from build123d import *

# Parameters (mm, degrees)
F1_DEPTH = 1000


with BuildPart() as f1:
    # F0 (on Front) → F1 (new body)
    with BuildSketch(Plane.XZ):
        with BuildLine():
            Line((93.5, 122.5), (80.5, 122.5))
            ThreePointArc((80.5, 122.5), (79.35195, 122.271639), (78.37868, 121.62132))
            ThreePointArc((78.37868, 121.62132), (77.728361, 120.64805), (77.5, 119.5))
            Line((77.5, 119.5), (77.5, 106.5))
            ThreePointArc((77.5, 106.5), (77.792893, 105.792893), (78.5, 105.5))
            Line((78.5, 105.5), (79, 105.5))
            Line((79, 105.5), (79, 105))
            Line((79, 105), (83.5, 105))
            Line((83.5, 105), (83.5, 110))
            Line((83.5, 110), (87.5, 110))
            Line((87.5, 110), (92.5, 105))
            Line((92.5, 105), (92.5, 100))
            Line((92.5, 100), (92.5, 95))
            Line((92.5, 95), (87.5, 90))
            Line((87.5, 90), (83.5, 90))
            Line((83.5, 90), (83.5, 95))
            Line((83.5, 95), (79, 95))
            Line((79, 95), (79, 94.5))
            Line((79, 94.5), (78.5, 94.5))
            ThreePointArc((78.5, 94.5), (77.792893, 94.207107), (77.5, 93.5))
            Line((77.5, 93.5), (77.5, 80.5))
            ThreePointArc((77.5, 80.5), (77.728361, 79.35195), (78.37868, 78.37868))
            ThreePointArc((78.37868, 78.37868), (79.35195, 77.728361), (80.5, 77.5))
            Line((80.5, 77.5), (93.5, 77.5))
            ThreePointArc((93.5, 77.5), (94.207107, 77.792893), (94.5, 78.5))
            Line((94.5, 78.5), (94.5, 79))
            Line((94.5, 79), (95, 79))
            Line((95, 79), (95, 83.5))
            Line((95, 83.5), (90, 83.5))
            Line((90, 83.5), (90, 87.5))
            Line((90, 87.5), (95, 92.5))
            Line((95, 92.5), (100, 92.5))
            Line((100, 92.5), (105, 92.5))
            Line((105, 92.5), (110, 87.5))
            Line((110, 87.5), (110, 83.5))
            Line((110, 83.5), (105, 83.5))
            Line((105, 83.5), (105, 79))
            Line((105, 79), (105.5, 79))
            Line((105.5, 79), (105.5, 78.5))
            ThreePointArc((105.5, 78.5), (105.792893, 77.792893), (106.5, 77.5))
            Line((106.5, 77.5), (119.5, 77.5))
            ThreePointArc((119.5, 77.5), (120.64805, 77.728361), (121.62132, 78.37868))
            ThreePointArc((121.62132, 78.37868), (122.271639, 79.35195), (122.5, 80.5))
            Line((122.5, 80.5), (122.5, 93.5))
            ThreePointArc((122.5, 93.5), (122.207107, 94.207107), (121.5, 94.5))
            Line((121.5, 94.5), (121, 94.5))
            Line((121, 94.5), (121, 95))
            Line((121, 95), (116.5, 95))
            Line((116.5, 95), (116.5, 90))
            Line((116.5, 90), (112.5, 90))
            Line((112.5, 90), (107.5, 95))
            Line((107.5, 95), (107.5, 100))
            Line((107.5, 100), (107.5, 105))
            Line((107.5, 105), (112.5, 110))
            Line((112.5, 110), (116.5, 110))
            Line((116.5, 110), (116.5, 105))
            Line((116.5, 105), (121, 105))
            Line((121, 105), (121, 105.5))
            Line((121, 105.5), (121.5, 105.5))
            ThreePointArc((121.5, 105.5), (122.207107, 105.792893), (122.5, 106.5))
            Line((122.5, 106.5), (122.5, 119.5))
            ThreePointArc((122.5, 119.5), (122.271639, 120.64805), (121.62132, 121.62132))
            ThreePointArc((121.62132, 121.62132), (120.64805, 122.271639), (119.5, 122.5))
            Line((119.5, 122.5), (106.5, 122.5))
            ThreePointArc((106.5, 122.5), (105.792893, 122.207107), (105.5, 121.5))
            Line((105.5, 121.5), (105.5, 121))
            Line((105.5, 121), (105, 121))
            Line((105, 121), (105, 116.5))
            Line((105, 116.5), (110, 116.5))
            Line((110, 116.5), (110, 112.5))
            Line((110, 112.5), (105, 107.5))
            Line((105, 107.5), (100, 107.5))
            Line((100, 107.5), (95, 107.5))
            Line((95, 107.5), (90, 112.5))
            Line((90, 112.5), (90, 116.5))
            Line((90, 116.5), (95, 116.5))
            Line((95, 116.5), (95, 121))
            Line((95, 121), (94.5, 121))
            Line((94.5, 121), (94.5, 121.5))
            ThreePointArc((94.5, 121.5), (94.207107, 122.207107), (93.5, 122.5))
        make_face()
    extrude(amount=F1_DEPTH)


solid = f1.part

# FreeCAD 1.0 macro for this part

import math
import FreeCAD as App
import Part
import Sketcher

doc = App.newDocument("Part")
body = doc.addObject("PartDesign::Body", "Body")

# Sketch on XZ plane
sketch1 = doc.addObject("Sketcher::SketchObject", "Sketch")
body.addObject(sketch1)
sketch1.AttachmentSupport = (doc.XZ_Plane, [""])
sketch1.MapMode = "FlatFace"
sketch1.addGeometry([
    Part.LineSegment(App.Vector(93.5, 122.5, 0), App.Vector(80.5, 122.5, 0)),  # 0
    Part.ArcOfCircle(Part.Circle(App.Vector(80.5, 119.5, 0), App.Vector(0, 0, 1), 3), math.radians(90), math.radians(135)),  # 1
    Part.ArcOfCircle(Part.Circle(App.Vector(80.5, 119.5, 0), App.Vector(0, 0, 1), 3), math.radians(135), math.radians(180)),  # 2
    Part.LineSegment(App.Vector(77.5, 119.5, 0), App.Vector(77.5, 106.5, 0)),  # 3
    Part.ArcOfCircle(Part.Circle(App.Vector(78.5, 106.5, 0), App.Vector(0, 0, 1), 1), math.radians(180), math.radians(270)),  # 4
    Part.LineSegment(App.Vector(78.5, 105.5, 0), App.Vector(79, 105.5, 0)),  # 5
    Part.LineSegment(App.Vector(79, 105.5, 0), App.Vector(79, 105, 0)),  # 6
    Part.LineSegment(App.Vector(79, 105, 0), App.Vector(83.5, 105, 0)),  # 7
    Part.LineSegment(App.Vector(83.5, 105, 0), App.Vector(83.5, 110, 0)),  # 8
    Part.LineSegment(App.Vector(83.5, 110, 0), App.Vector(87.5, 110, 0)),  # 9
    Part.LineSegment(App.Vector(87.5, 110, 0), App.Vector(92.5, 105, 0)),  # 10
    Part.LineSegment(App.Vector(92.5, 105, 0), App.Vector(92.5, 95, 0)),  # 11
    Part.LineSegment(App.Vector(92.5, 95, 0), App.Vector(87.5, 90, 0)),  # 12
    Part.LineSegment(App.Vector(87.5, 90, 0), App.Vector(83.5, 90, 0)),  # 13
    Part.LineSegment(App.Vector(83.5, 90, 0), App.Vector(83.5, 95, 0)),  # 14
    Part.LineSegment(App.Vector(83.5, 95, 0), App.Vector(79, 95, 0)),  # 15
    Part.LineSegment(App.Vector(79, 95, 0), App.Vector(79, 94.5, 0)),  # 16
    Part.LineSegment(App.Vector(79, 94.5, 0), App.Vector(78.5, 94.5, 0)),  # 17
    Part.ArcOfCircle(Part.Circle(App.Vector(78.5, 93.5, 0), App.Vector(0, 0, 1), 1), math.radians(90), math.radians(180)),  # 18
    Part.LineSegment(App.Vector(77.5, 93.5, 0), App.Vector(77.5, 80.5, 0)),  # 19
    Part.ArcOfCircle(Part.Circle(App.Vector(80.5, 80.5, 0), App.Vector(0, 0, 1), 3), math.radians(180), math.radians(225)),  # 20
    Part.ArcOfCircle(Part.Circle(App.Vector(80.5, 80.5, 0), App.Vector(0, 0, 1), 3), math.radians(-135), math.radians(-90)),  # 21
    Part.LineSegment(App.Vector(80.5, 77.5, 0), App.Vector(93.5, 77.5, 0)),  # 22
    Part.ArcOfCircle(Part.Circle(App.Vector(93.5, 78.5, 0), App.Vector(0, 0, 1), 1), math.radians(-90), math.radians(0)),  # 23
    Part.LineSegment(App.Vector(94.5, 78.5, 0), App.Vector(94.5, 79, 0)),  # 24
    Part.LineSegment(App.Vector(94.5, 79, 0), App.Vector(95, 79, 0)),  # 25
    Part.LineSegment(App.Vector(95, 79, 0), App.Vector(95, 83.5, 0)),  # 26
    Part.LineSegment(App.Vector(95, 83.5, 0), App.Vector(90, 83.5, 0)),  # 27
    Part.LineSegment(App.Vector(90, 83.5, 0), App.Vector(90, 87.5, 0)),  # 28
    Part.LineSegment(App.Vector(90, 87.5, 0), App.Vector(95, 92.5, 0)),  # 29
    Part.LineSegment(App.Vector(95, 92.5, 0), App.Vector(105, 92.5, 0)),  # 30
    Part.LineSegment(App.Vector(105, 92.5, 0), App.Vector(110, 87.5, 0)),  # 31
    Part.LineSegment(App.Vector(110, 87.5, 0), App.Vector(110, 83.5, 0)),  # 32
    Part.LineSegment(App.Vector(110, 83.5, 0), App.Vector(105, 83.5, 0)),  # 33
    Part.LineSegment(App.Vector(105, 83.5, 0), App.Vector(105, 79, 0)),  # 34
    Part.LineSegment(App.Vector(105, 79, 0), App.Vector(105.5, 79, 0)),  # 35
    Part.LineSegment(App.Vector(105.5, 79, 0), App.Vector(105.5, 78.5, 0)),  # 36
    Part.ArcOfCircle(Part.Circle(App.Vector(106.5, 78.5, 0), App.Vector(0, 0, 1), 1), math.radians(180), math.radians(270)),  # 37
    Part.LineSegment(App.Vector(106.5, 77.5, 0), App.Vector(119.5, 77.5, 0)),  # 38
    Part.ArcOfCircle(Part.Circle(App.Vector(119.5, 80.5, 0), App.Vector(0, 0, 1), 3), math.radians(-90), math.radians(-45)),  # 39
    Part.ArcOfCircle(Part.Circle(App.Vector(119.5, 80.5, 0), App.Vector(0, 0, 1), 3), math.radians(-45), math.radians(0)),  # 40
    Part.LineSegment(App.Vector(122.5, 80.5, 0), App.Vector(122.5, 93.5, 0)),  # 41
    Part.ArcOfCircle(Part.Circle(App.Vector(121.5, 93.5, 0), App.Vector(0, 0, 1), 1), math.radians(0), math.radians(90)),  # 42
    Part.LineSegment(App.Vector(121.5, 94.5, 0), App.Vector(121, 94.5, 0)),  # 43
    Part.LineSegment(App.Vector(121, 94.5, 0), App.Vector(121, 95, 0)),  # 44
    Part.LineSegment(App.Vector(121, 95, 0), App.Vector(116.5, 95, 0)),  # 45
    Part.LineSegment(App.Vector(116.5, 95, 0), App.Vector(116.5, 90, 0)),  # 46
    Part.LineSegment(App.Vector(116.5, 90, 0), App.Vector(112.5, 90, 0)),  # 47
    Part.LineSegment(App.Vector(112.5, 90, 0), App.Vector(107.5, 95, 0)),  # 48
    Part.LineSegment(App.Vector(107.5, 95, 0), App.Vector(107.5, 105, 0)),  # 49
    Part.LineSegment(App.Vector(107.5, 105, 0), App.Vector(112.5, 110, 0)),  # 50
    Part.LineSegment(App.Vector(112.5, 110, 0), App.Vector(116.5, 110, 0)),  # 51
    Part.LineSegment(App.Vector(116.5, 110, 0), App.Vector(116.5, 105, 0)),  # 52
    Part.LineSegment(App.Vector(116.5, 105, 0), App.Vector(121, 105, 0)),  # 53
    Part.LineSegment(App.Vector(121, 105, 0), App.Vector(121, 105.5, 0)),  # 54
    Part.LineSegment(App.Vector(121, 105.5, 0), App.Vector(121.5, 105.5, 0)),  # 55
    Part.ArcOfCircle(Part.Circle(App.Vector(121.5, 106.5, 0), App.Vector(0, 0, 1), 1), math.radians(-90), math.radians(0)),  # 56
    Part.LineSegment(App.Vector(122.5, 106.5, 0), App.Vector(122.5, 119.5, 0)),  # 57
    Part.ArcOfCircle(Part.Circle(App.Vector(119.5, 119.5, 0), App.Vector(0, 0, 1), 3), math.radians(0), math.radians(45)),  # 58
    Part.ArcOfCircle(Part.Circle(App.Vector(119.5, 119.5, 0), App.Vector(0, 0, 1), 3), math.radians(45), math.radians(90)),  # 59
    Part.LineSegment(App.Vector(119.5, 122.5, 0), App.Vector(106.5, 122.5, 0)),  # 60
    Part.ArcOfCircle(Part.Circle(App.Vector(106.5, 121.5, 0), App.Vector(0, 0, 1), 1), math.radians(90), math.radians(180)),  # 61
    Part.LineSegment(App.Vector(105.5, 121.5, 0), App.Vector(105.5, 121, 0)),  # 62
    Part.LineSegment(App.Vector(105.5, 121, 0), App.Vector(105, 121, 0)),  # 63
    Part.LineSegment(App.Vector(105, 121, 0), App.Vector(105, 116.5, 0)),  # 64
    Part.LineSegment(App.Vector(105, 116.5, 0), App.Vector(110, 116.5, 0)),  # 65
    Part.LineSegment(App.Vector(110, 116.5, 0), App.Vector(110, 112.5, 0)),  # 66
    Part.LineSegment(App.Vector(110, 112.5, 0), App.Vector(105, 107.5, 0)),  # 67
    Part.LineSegment(App.Vector(105, 107.5, 0), App.Vector(95, 107.5, 0)),  # 68
    Part.LineSegment(App.Vector(95, 107.5, 0), App.Vector(90, 112.5, 0)),  # 69
    Part.LineSegment(App.Vector(90, 112.5, 0), App.Vector(90, 116.5, 0)),  # 70
    Part.LineSegment(App.Vector(90, 116.5, 0), App.Vector(95, 116.5, 0)),  # 71
    Part.LineSegment(App.Vector(95, 116.5, 0), App.Vector(95, 121, 0)),  # 72
    Part.LineSegment(App.Vector(95, 121, 0), App.Vector(94.5, 121, 0)),  # 73
    Part.LineSegment(App.Vector(94.5, 121, 0), App.Vector(94.5, 121.5, 0)),  # 74
    Part.ArcOfCircle(Part.Circle(App.Vector(93.5, 121.5, 0), App.Vector(0, 0, 1), 1), math.radians(0), math.radians(90)),  # 75
], False)
sketch1.addConstraint([
    Sketcher.Constraint("Tangent", 0, 2, 1, 1),
    Sketcher.Constraint("Coincident", 1, 2, 2, 1),
    Sketcher.Constraint("Tangent", 2, 2, 3, 1),
    Sketcher.Constraint("Tangent", 3, 2, 4, 1),
    Sketcher.Constraint("Tangent", 4, 2, 5, 1),
    Sketcher.Constraint("Coincident", 5, 2, 6, 1),
    Sketcher.Constraint("Coincident", 6, 2, 7, 1),
    Sketcher.Constraint("Coincident", 7, 2, 8, 1),
    Sketcher.Constraint("Coincident", 8, 2, 9, 1),
    Sketcher.Constraint("Coincident", 9, 2, 10, 1),
    Sketcher.Constraint("Coincident", 10, 2, 11, 1),
    Sketcher.Constraint("Coincident", 11, 2, 12, 1),
    Sketcher.Constraint("Coincident", 12, 2, 13, 1),
    Sketcher.Constraint("Coincident", 13, 2, 14, 1),
    Sketcher.Constraint("Coincident", 14, 2, 15, 1),
    Sketcher.Constraint("Coincident", 15, 2, 16, 1),
    Sketcher.Constraint("Coincident", 16, 2, 17, 1),
    Sketcher.Constraint("Tangent", 17, 2, 18, 1),
    Sketcher.Constraint("Tangent", 18, 2, 19, 1),
    Sketcher.Constraint("Tangent", 19, 2, 20, 1),
    Sketcher.Constraint("Coincident", 20, 2, 21, 1),
    Sketcher.Constraint("Tangent", 21, 2, 22, 1),
    Sketcher.Constraint("Tangent", 22, 2, 23, 1),
    Sketcher.Constraint("Tangent", 23, 2, 24, 1),
    Sketcher.Constraint("Coincident", 24, 2, 25, 1),
    Sketcher.Constraint("Coincident", 25, 2, 26, 1),
    Sketcher.Constraint("Coincident", 26, 2, 27, 1),
    Sketcher.Constraint("Coincident", 27, 2, 28, 1),
    Sketcher.Constraint("Coincident", 28, 2, 29, 1),
    Sketcher.Constraint("Coincident", 29, 2, 30, 1),
    Sketcher.Constraint("Coincident", 30, 2, 31, 1),
    Sketcher.Constraint("Coincident", 31, 2, 32, 1),
    Sketcher.Constraint("Coincident", 32, 2, 33, 1),
    Sketcher.Constraint("Coincident", 33, 2, 34, 1),
    Sketcher.Constraint("Coincident", 34, 2, 35, 1),
    Sketcher.Constraint("Coincident", 35, 2, 36, 1),
    Sketcher.Constraint("Tangent", 36, 2, 37, 1),
    Sketcher.Constraint("Tangent", 37, 2, 38, 1),
    Sketcher.Constraint("Tangent", 38, 2, 39, 1),
    Sketcher.Constraint("Coincident", 39, 2, 40, 1),
    Sketcher.Constraint("Tangent", 40, 2, 41, 1),
    Sketcher.Constraint("Tangent", 41, 2, 42, 1),
    Sketcher.Constraint("Tangent", 42, 2, 43, 1),
    Sketcher.Constraint("Coincident", 43, 2, 44, 1),
    Sketcher.Constraint("Coincident", 44, 2, 45, 1),
    Sketcher.Constraint("Coincident", 45, 2, 46, 1),
    Sketcher.Constraint("Coincident", 46, 2, 47, 1),
    Sketcher.Constraint("Coincident", 47, 2, 48, 1),
    Sketcher.Constraint("Coincident", 48, 2, 49, 1),
    Sketcher.Constraint("Coincident", 49, 2, 50, 1),
    Sketcher.Constraint("Coincident", 50, 2, 51, 1),
    Sketcher.Constraint("Coincident", 51, 2, 52, 1),
    Sketcher.Constraint("Coincident", 52, 2, 53, 1),
    Sketcher.Constraint("Coincident", 53, 2, 54, 1),
    Sketcher.Constraint("Coincident", 54, 2, 55, 1),
    Sketcher.Constraint("Tangent", 55, 2, 56, 1),
    Sketcher.Constraint("Tangent", 56, 2, 57, 1),
    Sketcher.Constraint("Tangent", 57, 2, 58, 1),
    Sketcher.Constraint("Coincident", 58, 2, 59, 1),
    Sketcher.Constraint("Tangent", 59, 2, 60, 1),
    Sketcher.Constraint("Tangent", 60, 2, 61, 1),
    Sketcher.Constraint("Tangent", 61, 2, 62, 1),
    Sketcher.Constraint("Coincident", 62, 2, 63, 1),
    Sketcher.Constraint("Coincident", 63, 2, 64, 1),
    Sketcher.Constraint("Coincident", 64, 2, 65, 1),
    Sketcher.Constraint("Coincident", 65, 2, 66, 1),
    Sketcher.Constraint("Coincident", 66, 2, 67, 1),
    Sketcher.Constraint("Coincident", 67, 2, 68, 1),
    Sketcher.Constraint("Coincident", 68, 2, 69, 1),
    Sketcher.Constraint("Coincident", 69, 2, 70, 1),
    Sketcher.Constraint("Coincident", 70, 2, 71, 1),
    Sketcher.Constraint("Coincident", 71, 2, 72, 1),
    Sketcher.Constraint("Coincident", 72, 2, 73, 1),
    Sketcher.Constraint("Coincident", 73, 2, 74, 1),
    Sketcher.Constraint("Tangent", 74, 2, 75, 1),
    Sketcher.Constraint("Tangent", 75, 2, 0, 1),
    Sketcher.Constraint("Horizontal", 0),
    Sketcher.Constraint("Vertical", 3),
    Sketcher.Constraint("Horizontal", 5),
    Sketcher.Constraint("Vertical", 6),
    Sketcher.Constraint("Horizontal", 7),
    Sketcher.Constraint("Vertical", 8),
    Sketcher.Constraint("Horizontal", 9),
    Sketcher.Constraint("Vertical", 11),
    Sketcher.Constraint("Horizontal", 13),
    Sketcher.Constraint("Vertical", 14),
    Sketcher.Constraint("Horizontal", 15),
    Sketcher.Constraint("Vertical", 16),
    Sketcher.Constraint("Horizontal", 17),
    Sketcher.Constraint("Vertical", 19),
    Sketcher.Constraint("Horizontal", 22),
    Sketcher.Constraint("Vertical", 24),
    Sketcher.Constraint("Horizontal", 25),
    Sketcher.Constraint("Vertical", 26),
    Sketcher.Constraint("Horizontal", 27),
    Sketcher.Constraint("Vertical", 28),
    Sketcher.Constraint("Horizontal", 30),
    Sketcher.Constraint("Vertical", 32),
    Sketcher.Constraint("Horizontal", 33),
    Sketcher.Constraint("Vertical", 34),
    Sketcher.Constraint("Horizontal", 35),
    Sketcher.Constraint("Vertical", 36),
    Sketcher.Constraint("Horizontal", 38),
    Sketcher.Constraint("Vertical", 41),
    Sketcher.Constraint("Horizontal", 43),
    Sketcher.Constraint("Vertical", 44),
    Sketcher.Constraint("Horizontal", 45),
    Sketcher.Constraint("Vertical", 46),
    Sketcher.Constraint("Horizontal", 47),
    Sketcher.Constraint("Vertical", 49),
    Sketcher.Constraint("Horizontal", 51),
    Sketcher.Constraint("Vertical", 52),
    Sketcher.Constraint("Horizontal", 53),
    Sketcher.Constraint("Vertical", 54),
    Sketcher.Constraint("Horizontal", 55),
    Sketcher.Constraint("Vertical", 57),
    Sketcher.Constraint("Horizontal", 60),
    Sketcher.Constraint("Vertical", 62),
    Sketcher.Constraint("Horizontal", 63),
    Sketcher.Constraint("Vertical", 64),
    Sketcher.Constraint("Horizontal", 65),
    Sketcher.Constraint("Vertical", 66),
    Sketcher.Constraint("Horizontal", 68),
    Sketcher.Constraint("Vertical", 70),
    Sketcher.Constraint("Horizontal", 71),
    Sketcher.Constraint("Vertical", 72),
    Sketcher.Constraint("Horizontal", 73),
    Sketcher.Constraint("Vertical", 74),
    Sketcher.Constraint("Coincident", 2, 3, 1, 3),
    Sketcher.Constraint("Coincident", 21, 3, 20, 3),
    Sketcher.Constraint("Coincident", 40, 3, 39, 3),
    Sketcher.Constraint("Coincident", 59, 3, 58, 3),
    Sketcher.Constraint("Equal", 4, 18),
    Sketcher.Constraint("Equal", 2, 20),
    Sketcher.Constraint("Equal", 18, 23),
    Sketcher.Constraint("Equal", 23, 37),
    Sketcher.Constraint("Equal", 21, 39),
    Sketcher.Constraint("Equal", 37, 42),
    Sketcher.Constraint("Equal", 42, 56),
    Sketcher.Constraint("Equal", 40, 58),
    Sketcher.Constraint("Equal", 56, 61),
    Sketcher.Constraint("Equal", 61, 75),
    Sketcher.Constraint("Perpendicular", 10, 12),
    Sketcher.Constraint("Parallel", 12, 29),
    Sketcher.Constraint("Perpendicular", 29, 31),
    Sketcher.Constraint("Parallel", 31, 48),
    Sketcher.Constraint("Perpendicular", 48, 50),
    Sketcher.Constraint("Parallel", 50, 67),
    Sketcher.Constraint("Perpendicular", 67, 69),
    Sketcher.Constraint("Horizontal", 23, 3, 37, 3),
    Sketcher.Constraint("Horizontal", 18, 3, 42, 3),
    Sketcher.Constraint("Horizontal", 4, 3, 56, 3),
    Sketcher.Constraint("Horizontal", 2, 3, 58, 3),
    Sketcher.Constraint("Horizontal", 7, 2, 10, 2),
    Sketcher.Constraint("Horizontal", 11, 2, 14, 2),
    Sketcher.Constraint("Horizontal", 28, 2, 31, 2),
    Sketcher.Constraint("Horizontal", 27, 2, 32, 2),
    Sketcher.Constraint("Horizontal", 25, 2, 34, 2),
    Sketcher.Constraint("Horizontal", 20, 2, 39, 2),
    Sketcher.Constraint("Horizontal", 15, 2, 44, 2),
    Sketcher.Constraint("Horizontal", 13, 2, 46, 2),
    Sketcher.Constraint("Horizontal", 45, 2, 48, 2),
    Sketcher.Constraint("Horizontal", 10, 2, 49, 2),
    Sketcher.Constraint("Horizontal", 9, 2, 50, 2),
    Sketcher.Constraint("Horizontal", 49, 2, 52, 2),
    Sketcher.Constraint("Horizontal", 1, 2, 58, 2),
    Sketcher.Constraint("Horizontal", 66, 2, 69, 2),
    Sketcher.Constraint("Horizontal", 65, 2, 70, 2),
    Sketcher.Constraint("Horizontal", 63, 2, 72, 2),
    Sketcher.Constraint("Vertical", 4, 3, 18, 3),
    Sketcher.Constraint("Vertical", 42, 3, 56, 3),
    Sketcher.Constraint("Vertical", 37, 3, 61, 3),
    Sketcher.Constraint("Vertical", 23, 3, 75, 3),
    Sketcher.Constraint("Vertical", 9, 2, 12, 2),
    Sketcher.Constraint("Vertical", 8, 2, 13, 2),
    Sketcher.Constraint("Vertical", 6, 2, 15, 2),
    Sketcher.Constraint("Vertical", 1, 2, 20, 2),
    Sketcher.Constraint("Vertical", 26, 2, 29, 2),
    Sketcher.Constraint("Vertical", 30, 2, 33, 2),
    Sketcher.Constraint("Vertical", 47, 2, 50, 2),
    Sketcher.Constraint("Vertical", 46, 2, 51, 2),
    Sketcher.Constraint("Vertical", 44, 2, 53, 2),
    Sketcher.Constraint("Vertical", 34, 2, 63, 2),
    Sketcher.Constraint("Vertical", 32, 2, 65, 2),
    Sketcher.Constraint("Vertical", 64, 2, 67, 2),
    Sketcher.Constraint("Vertical", 29, 2, 68, 2),
    Sketcher.Constraint("Vertical", 68, 2, 71, 2),
    Sketcher.Constraint("Equal", 17, 25),
    Sketcher.Constraint("Equal", 25, 35),
    Sketcher.Constraint("Equal", 22, 38),
    Sketcher.Constraint("Equal", 35, 43),
    Sketcher.Constraint("Equal", 15, 45),
    Sketcher.Constraint("Equal", 13, 47),
    Sketcher.Constraint("Equal", 60, 3),
    Sketcher.Constraint("Equal", 73, 6),
    Sketcher.Constraint("Equal", 71, 8),
    Sketcher.Constraint("Equal", 68, 11),
    Sketcher.Constraint("Equal", 6, 16),
    Sketcher.Constraint("Equal", 3, 19),
    Sketcher.Constraint("Equal", 16, 24),
    Sketcher.Constraint("Equal", 53, 26),
    Sketcher.Constraint("Equal", 51, 28),
    Sketcher.Constraint("Equal", 54, 62),
    Sketcher.Constraint("Equal", 34, 64),
    Sketcher.Constraint("Equal", 32, 66),
    Sketcher.Constraint("Radius", 4, 0.999999),
    Sketcher.Constraint("DistanceX", 0, 2, 0, 1, 13.0),
    Sketcher.Constraint("DistanceX", 9, 1, 9, 2, 4.0),
    Sketcher.Constraint("DistanceX", 27, 2, 27, 1, 5.0),
    Sketcher.Constraint("DistanceX", 30, 1, 30, 2, 10.0),
    Sketcher.Constraint("DistanceX", 5, 1, 5, 2, 0.5),
    Sketcher.Constraint("DistanceX", 7, 1, 7, 2, 4.5),
    Sketcher.Constraint("DistanceX", -1, 1, 5, 2, 79.0),
    Sketcher.Constraint("DistanceY", -1, 1, 6, 2, 105.0),
    Sketcher.Constraint("DistanceY", -1, 1, 24, 2, 79.0),
    Sketcher.Constraint("DistanceX", -1, 1, 1, 2, 78.37868),
])
pad1 = doc.addObject("PartDesign::Pad", "Pad")
body.addObject(pad1)
pad1.Profile = sketch1
pad1.Length = 1000

doc.recompute()
